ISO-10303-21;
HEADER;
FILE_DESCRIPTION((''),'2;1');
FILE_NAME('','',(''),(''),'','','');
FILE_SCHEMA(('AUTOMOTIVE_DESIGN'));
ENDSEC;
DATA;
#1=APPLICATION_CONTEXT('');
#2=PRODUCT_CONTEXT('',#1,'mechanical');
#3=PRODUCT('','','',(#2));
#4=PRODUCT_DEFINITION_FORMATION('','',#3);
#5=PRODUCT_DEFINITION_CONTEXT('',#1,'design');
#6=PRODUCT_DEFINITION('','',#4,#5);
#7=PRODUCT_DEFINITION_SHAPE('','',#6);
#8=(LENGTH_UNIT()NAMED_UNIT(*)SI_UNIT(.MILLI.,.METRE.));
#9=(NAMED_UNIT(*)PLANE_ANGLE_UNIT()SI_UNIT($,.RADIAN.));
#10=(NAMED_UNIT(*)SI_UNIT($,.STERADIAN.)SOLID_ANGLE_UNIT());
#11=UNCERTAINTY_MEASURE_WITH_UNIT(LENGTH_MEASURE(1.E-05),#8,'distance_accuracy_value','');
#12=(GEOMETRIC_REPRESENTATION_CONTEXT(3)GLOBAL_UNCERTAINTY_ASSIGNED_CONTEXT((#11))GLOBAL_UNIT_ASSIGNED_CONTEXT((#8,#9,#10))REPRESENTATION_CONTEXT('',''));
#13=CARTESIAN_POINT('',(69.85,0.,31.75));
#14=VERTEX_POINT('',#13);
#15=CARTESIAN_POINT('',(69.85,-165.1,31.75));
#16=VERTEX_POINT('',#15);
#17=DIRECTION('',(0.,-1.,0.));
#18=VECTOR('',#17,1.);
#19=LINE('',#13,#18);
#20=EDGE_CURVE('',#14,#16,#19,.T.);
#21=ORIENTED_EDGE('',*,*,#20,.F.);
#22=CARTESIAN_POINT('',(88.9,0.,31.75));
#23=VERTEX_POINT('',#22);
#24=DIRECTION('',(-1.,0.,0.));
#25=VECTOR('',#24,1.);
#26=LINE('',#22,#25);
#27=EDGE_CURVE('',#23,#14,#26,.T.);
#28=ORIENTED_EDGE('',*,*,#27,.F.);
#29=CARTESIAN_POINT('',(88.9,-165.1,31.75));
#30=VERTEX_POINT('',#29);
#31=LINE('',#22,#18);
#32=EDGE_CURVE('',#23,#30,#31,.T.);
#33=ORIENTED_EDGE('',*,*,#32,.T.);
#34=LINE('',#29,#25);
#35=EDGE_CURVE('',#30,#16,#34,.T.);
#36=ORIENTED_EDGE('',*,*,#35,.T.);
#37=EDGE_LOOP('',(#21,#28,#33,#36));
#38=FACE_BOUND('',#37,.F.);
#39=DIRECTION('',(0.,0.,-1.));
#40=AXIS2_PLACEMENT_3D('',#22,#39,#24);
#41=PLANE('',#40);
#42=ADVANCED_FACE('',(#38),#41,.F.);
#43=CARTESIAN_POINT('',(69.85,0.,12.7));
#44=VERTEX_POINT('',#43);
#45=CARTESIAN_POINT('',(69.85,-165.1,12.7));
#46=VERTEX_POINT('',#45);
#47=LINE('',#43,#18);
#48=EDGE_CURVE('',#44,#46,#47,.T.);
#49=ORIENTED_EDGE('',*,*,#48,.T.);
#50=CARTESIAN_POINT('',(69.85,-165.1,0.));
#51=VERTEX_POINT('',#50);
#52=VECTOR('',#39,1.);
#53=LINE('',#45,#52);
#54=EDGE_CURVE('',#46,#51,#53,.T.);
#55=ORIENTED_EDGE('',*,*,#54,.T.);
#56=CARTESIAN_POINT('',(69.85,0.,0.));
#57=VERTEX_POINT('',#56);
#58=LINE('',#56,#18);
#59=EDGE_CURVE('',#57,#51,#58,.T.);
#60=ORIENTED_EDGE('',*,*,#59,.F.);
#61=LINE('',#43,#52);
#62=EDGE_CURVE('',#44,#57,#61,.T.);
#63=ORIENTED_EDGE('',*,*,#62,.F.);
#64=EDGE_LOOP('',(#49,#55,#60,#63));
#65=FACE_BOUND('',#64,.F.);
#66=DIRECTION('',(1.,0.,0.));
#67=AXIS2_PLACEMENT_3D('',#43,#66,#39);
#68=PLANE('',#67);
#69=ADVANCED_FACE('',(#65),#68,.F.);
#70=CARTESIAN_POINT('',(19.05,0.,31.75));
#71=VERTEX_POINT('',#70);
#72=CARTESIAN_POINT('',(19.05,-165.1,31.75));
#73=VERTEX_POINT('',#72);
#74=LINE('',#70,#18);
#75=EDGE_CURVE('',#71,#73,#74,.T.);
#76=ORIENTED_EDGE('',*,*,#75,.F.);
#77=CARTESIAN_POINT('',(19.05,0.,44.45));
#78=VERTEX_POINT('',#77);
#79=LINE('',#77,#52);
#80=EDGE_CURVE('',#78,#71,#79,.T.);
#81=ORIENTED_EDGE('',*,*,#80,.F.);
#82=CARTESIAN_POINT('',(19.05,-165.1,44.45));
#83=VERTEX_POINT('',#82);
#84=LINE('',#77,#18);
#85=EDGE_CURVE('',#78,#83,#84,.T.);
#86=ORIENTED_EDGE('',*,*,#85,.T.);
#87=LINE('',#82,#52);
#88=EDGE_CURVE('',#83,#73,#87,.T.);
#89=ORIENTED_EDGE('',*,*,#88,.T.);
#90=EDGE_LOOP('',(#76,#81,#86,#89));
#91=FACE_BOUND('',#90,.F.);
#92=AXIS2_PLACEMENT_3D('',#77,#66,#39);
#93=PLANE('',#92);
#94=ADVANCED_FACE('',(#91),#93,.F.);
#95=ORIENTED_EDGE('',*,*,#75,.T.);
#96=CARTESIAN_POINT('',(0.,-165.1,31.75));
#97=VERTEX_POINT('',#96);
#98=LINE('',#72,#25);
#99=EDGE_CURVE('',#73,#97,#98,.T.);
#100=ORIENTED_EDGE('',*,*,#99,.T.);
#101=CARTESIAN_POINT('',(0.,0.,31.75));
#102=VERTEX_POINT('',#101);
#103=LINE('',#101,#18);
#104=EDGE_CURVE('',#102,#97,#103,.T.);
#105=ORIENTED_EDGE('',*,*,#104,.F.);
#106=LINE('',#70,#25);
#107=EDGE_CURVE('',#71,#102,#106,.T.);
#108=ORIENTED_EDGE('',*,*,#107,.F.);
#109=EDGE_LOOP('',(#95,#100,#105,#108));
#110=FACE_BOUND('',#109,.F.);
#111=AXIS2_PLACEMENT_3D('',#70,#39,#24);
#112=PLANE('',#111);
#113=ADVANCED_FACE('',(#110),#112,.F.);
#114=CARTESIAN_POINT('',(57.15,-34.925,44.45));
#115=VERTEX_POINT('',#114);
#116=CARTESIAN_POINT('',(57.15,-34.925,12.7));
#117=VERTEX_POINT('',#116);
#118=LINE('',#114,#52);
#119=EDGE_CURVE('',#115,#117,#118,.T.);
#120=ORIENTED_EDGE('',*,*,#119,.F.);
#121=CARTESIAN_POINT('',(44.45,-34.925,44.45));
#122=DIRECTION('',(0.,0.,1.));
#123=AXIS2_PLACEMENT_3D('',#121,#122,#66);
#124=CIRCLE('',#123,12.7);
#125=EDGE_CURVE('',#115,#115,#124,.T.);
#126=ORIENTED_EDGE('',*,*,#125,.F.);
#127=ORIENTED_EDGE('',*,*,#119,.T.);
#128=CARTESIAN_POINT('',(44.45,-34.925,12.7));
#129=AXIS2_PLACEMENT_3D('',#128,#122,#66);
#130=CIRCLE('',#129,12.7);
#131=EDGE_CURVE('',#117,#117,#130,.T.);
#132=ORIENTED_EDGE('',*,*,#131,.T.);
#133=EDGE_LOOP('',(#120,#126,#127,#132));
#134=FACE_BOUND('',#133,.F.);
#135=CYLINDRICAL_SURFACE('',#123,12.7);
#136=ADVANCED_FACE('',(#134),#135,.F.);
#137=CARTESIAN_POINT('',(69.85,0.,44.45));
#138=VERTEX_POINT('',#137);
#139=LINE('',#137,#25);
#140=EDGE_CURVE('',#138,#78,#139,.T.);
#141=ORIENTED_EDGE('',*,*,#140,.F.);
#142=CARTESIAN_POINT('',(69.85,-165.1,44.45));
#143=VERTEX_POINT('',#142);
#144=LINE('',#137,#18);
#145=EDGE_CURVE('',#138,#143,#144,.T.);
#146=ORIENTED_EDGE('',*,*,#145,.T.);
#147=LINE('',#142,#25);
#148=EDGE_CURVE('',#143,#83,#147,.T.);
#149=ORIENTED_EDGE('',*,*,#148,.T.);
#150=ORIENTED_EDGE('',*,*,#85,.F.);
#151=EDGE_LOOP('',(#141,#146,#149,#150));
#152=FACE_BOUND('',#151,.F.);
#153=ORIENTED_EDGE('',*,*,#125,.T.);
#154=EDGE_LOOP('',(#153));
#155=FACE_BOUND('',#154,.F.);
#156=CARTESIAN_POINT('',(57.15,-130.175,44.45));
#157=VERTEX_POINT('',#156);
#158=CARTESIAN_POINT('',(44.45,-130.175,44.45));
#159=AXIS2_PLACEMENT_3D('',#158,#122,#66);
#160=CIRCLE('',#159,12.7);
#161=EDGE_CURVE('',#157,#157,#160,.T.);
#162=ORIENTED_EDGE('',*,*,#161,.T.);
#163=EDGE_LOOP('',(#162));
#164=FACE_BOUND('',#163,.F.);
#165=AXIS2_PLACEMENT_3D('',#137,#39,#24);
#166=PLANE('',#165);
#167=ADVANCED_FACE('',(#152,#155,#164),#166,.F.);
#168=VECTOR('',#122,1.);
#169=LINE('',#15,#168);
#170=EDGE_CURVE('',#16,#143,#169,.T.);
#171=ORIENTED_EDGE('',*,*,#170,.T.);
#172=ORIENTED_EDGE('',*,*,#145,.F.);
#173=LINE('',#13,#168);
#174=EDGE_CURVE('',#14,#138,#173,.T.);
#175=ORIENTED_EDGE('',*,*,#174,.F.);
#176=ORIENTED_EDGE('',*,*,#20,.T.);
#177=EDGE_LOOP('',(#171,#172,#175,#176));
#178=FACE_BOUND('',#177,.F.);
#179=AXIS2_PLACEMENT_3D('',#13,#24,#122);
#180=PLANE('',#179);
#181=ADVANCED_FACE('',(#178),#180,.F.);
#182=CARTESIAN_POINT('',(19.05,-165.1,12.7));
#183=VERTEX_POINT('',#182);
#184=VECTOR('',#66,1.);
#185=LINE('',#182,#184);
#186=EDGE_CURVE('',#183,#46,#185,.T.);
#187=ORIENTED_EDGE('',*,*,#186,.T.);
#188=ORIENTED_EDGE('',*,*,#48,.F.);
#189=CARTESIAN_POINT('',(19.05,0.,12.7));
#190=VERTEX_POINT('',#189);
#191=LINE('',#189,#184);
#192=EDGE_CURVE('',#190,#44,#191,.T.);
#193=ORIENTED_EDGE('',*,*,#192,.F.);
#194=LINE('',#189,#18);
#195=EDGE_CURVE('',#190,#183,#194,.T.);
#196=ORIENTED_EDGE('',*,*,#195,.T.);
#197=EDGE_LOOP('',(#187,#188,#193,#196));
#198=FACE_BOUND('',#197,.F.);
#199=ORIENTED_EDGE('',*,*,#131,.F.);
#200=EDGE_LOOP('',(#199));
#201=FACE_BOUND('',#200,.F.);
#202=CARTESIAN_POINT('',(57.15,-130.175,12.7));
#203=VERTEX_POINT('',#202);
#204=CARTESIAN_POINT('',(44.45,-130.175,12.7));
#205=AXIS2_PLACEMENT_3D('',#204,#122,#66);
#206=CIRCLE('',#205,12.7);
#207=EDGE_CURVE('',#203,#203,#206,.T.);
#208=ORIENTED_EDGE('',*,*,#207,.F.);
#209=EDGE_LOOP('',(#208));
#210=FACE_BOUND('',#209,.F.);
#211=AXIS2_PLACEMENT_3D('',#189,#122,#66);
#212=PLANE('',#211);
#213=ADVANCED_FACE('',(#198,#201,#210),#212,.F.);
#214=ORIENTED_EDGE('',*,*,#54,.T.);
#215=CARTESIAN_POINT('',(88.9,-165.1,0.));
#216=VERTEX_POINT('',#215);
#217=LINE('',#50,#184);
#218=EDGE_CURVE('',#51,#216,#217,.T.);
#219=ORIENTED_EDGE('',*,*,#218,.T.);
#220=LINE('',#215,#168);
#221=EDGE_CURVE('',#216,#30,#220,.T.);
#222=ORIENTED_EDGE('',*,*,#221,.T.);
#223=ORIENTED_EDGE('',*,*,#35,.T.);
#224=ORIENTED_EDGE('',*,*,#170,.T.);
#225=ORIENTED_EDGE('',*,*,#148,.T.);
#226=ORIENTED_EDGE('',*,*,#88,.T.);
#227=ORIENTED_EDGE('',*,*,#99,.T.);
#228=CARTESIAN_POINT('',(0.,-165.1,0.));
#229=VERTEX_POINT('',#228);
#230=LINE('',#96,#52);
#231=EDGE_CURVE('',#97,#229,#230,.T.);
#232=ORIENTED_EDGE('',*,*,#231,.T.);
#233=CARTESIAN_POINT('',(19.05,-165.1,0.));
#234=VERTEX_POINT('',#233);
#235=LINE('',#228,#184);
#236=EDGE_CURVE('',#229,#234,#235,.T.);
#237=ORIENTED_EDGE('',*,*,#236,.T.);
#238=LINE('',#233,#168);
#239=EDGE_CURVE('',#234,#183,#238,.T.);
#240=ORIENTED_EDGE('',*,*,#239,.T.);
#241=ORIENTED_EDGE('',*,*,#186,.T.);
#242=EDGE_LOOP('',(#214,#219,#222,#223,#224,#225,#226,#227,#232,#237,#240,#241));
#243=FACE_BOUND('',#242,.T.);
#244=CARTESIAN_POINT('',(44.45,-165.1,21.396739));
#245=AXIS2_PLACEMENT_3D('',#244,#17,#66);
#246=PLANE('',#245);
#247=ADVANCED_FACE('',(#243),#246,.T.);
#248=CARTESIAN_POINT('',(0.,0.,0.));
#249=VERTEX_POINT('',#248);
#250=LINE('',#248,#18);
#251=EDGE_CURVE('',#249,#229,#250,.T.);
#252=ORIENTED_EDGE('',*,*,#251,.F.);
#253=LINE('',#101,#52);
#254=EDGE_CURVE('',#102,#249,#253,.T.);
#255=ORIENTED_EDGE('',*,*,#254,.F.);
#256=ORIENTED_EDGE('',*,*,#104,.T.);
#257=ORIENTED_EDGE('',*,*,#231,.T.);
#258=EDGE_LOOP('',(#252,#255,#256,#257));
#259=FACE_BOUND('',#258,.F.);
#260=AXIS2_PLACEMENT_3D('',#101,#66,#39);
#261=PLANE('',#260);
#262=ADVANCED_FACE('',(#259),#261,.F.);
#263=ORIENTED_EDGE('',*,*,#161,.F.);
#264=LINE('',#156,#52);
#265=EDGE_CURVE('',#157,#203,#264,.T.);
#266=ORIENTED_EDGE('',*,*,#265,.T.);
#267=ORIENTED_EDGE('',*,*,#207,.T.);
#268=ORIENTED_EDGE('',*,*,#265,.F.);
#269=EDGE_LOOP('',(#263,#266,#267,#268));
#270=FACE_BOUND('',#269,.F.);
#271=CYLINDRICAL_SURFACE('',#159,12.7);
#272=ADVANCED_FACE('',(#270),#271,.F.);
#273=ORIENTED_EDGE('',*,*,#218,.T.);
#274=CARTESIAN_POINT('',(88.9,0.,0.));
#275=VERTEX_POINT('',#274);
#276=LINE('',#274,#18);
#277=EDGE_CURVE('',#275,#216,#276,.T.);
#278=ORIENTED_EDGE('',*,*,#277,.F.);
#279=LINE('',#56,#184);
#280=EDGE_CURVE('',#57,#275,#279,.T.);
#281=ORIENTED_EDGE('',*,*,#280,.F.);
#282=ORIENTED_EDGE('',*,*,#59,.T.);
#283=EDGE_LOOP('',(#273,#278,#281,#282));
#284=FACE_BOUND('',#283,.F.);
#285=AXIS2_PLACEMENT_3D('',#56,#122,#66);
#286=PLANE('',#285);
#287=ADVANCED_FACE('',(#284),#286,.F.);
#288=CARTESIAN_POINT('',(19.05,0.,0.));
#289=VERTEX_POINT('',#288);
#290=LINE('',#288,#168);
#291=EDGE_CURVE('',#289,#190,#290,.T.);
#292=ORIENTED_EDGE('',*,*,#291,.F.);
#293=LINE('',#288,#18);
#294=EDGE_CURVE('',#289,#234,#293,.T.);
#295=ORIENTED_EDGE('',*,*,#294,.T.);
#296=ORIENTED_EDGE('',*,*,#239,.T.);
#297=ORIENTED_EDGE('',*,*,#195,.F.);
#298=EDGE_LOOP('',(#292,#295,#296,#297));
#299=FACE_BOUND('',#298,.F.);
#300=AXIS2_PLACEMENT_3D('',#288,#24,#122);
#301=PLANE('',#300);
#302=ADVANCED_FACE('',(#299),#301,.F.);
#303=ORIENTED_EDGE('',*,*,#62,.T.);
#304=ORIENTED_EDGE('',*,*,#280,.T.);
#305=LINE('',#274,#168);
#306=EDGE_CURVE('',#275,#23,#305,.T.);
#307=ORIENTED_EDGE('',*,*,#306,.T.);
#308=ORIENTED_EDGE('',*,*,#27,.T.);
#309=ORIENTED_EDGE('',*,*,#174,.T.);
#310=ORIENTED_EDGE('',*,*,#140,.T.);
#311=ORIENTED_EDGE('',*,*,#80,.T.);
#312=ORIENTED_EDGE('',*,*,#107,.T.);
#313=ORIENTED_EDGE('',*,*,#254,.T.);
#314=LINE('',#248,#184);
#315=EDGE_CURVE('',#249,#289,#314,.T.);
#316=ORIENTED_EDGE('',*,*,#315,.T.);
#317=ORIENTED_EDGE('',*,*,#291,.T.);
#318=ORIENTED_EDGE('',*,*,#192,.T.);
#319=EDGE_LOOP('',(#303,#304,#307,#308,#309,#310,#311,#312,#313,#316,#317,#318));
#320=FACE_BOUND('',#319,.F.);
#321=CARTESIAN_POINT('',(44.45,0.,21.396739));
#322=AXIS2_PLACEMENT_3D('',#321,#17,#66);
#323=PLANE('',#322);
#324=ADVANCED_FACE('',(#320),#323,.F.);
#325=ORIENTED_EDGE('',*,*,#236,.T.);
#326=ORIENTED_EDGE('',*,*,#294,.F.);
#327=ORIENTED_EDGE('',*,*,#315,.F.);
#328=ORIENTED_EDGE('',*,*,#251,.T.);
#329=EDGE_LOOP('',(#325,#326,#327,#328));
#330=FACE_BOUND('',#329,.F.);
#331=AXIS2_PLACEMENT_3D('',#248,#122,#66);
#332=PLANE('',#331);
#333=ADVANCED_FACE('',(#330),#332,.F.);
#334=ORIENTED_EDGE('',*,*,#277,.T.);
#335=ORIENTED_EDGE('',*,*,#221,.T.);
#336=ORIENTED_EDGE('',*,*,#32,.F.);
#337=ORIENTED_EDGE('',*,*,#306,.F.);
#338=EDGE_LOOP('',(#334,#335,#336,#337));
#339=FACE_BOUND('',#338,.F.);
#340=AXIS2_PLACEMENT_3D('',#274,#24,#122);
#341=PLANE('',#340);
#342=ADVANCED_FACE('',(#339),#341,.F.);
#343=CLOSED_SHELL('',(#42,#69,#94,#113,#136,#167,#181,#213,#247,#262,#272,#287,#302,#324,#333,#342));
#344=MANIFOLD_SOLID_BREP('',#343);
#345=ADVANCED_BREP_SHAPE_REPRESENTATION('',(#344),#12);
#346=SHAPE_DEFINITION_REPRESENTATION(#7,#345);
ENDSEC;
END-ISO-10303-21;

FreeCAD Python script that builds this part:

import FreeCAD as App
import Part
import Sketcher

V = App.Vector
Q = App.Units.Quantity

doc = App.newDocument("Part")
params = doc.addObject("Spreadsheet::Sheet", "Params")
for row, (alias, value) in enumerate([
    ("sketch1_width", "2 in"),
    ("sketch1_height", "0.5 in"),
    ("sketch1_width2", "0.75 in"),
    ("sketch1_height2", "1.25 in"),
    ("pad1_length", "6.5 in"),
    ("sketch2_diameter", "1 in"),
], start=1):
    params.set(f"A{row}", alias)
    params.set(f"B{row}", "=" + value)
    params.setAlias(f"B{row}", alias)

body = doc.addObject("PartDesign::Body", "Body")

# Sketch on XZ plane
sketch1 = body.newObject("Sketcher::SketchObject", "Sketch")
sketch1.AttachmentSupport = (doc.getObject("XZ_Plane"), [""])
sketch1.MapMode = "FlatFace"
sketch1.addGeometry(Part.LineSegment(V(0, 31.75, 0), V(0, 0, 0)), False)
sketch1.addGeometry(Part.LineSegment(V(0, 0, 0), V(19.05, 0, 0)), False)
sketch1.addGeometry(Part.LineSegment(V(19.05, 0, 0), V(19.05, 12.7, 0)), False)
sketch1.addGeometry(Part.LineSegment(V(19.05, 12.7, 0), V(69.85, 12.7, 0)), False)
sketch1.addGeometry(Part.LineSegment(V(69.85, 12.7, 0), V(69.85, 0, 0)), False)
sketch1.addGeometry(Part.LineSegment(V(69.85, 0, 0), V(88.9, 0, 0)), False)
sketch1.addGeometry(Part.LineSegment(V(88.9, 0, 0), V(88.9, 31.75, 0)), False)
sketch1.addGeometry(Part.LineSegment(V(88.9, 31.75, 0), V(69.85, 31.75, 0)), False)
sketch1.addGeometry(Part.LineSegment(V(69.85, 31.75, 0), V(69.85, 44.45, 0)), False)
sketch1.addGeometry(Part.LineSegment(V(69.85, 44.45, 0), V(19.05, 44.45, 0)), False)
sketch1.addGeometry(Part.LineSegment(V(19.05, 44.45, 0), V(19.05, 31.75, 0)), False)
sketch1.addGeometry(Part.LineSegment(V(19.05, 31.75, 0), V(0, 31.75, 0)), False)
sketch1.addConstraint(Sketcher.Constraint("Coincident", 0, 2, 1, 1))
sketch1.addConstraint(Sketcher.Constraint("Coincident", 1, 2, 2, 1))
sketch1.addConstraint(Sketcher.Constraint("Coincident", 2, 2, 3, 1))
sketch1.addConstraint(Sketcher.Constraint("Coincident", 3, 2, 4, 1))
sketch1.addConstraint(Sketcher.Constraint("Coincident", 4, 2, 5, 1))
sketch1.addConstraint(Sketcher.Constraint("Coincident", 5, 2, 6, 1))
sketch1.addConstraint(Sketcher.Constraint("Coincident", 6, 2, 7, 1))
sketch1.addConstraint(Sketcher.Constraint("Coincident", 7, 2, 8, 1))
sketch1.addConstraint(Sketcher.Constraint("Coincident", 8, 2, 9, 1))
sketch1.addConstraint(Sketcher.Constraint("Coincident", 9, 2, 10, 1))
sketch1.addConstraint(Sketcher.Constraint("Coincident", 10, 2, 11, 1))
sketch1.addConstraint(Sketcher.Constraint("Coincident", 11, 2, 0, 1))
sketch1.addConstraint(Sketcher.Constraint("Vertical", 0))
sketch1.addConstraint(Sketcher.Constraint("Horizontal", 1))
sketch1.addConstraint(Sketcher.Constraint("Vertical", 2))
sketch1.addConstraint(Sketcher.Constraint("Horizontal", 3))
sketch1.addConstraint(Sketcher.Constraint("Vertical", 4))
sketch1.addConstraint(Sketcher.Constraint("Horizontal", 5))
sketch1.addConstraint(Sketcher.Constraint("Vertical", 6))
sketch1.addConstraint(Sketcher.Constraint("Horizontal", 7))
sketch1.addConstraint(Sketcher.Constraint("Vertical", 8))
sketch1.addConstraint(Sketcher.Constraint("Horizontal", 9))
sketch1.addConstraint(Sketcher.Constraint("Vertical", 10))
sketch1.addConstraint(Sketcher.Constraint("Horizontal", 11))
sketch1.addConstraint(Sketcher.Constraint("Coincident", 0, 2, -1, 1))
sketch1.addConstraint(Sketcher.Constraint("PointOnObject", 4, 2, -1))
sketch1.addConstraint(Sketcher.Constraint("Horizontal", 7, 2, 10, 2))
sketch1.addConstraint(Sketcher.Constraint("Vertical", 4, 2, 7, 2))
sketch1.addConstraint(Sketcher.Constraint("Vertical", 2, 2, 9, 2))
sketch1.addConstraint(Sketcher.Constraint("Equal", 1, 5))
sketch1.addConstraint(Sketcher.Constraint("Equal", 4, 8))
sketch1.addConstraint(Sketcher.Constraint("DistanceX", 3, 1, 3, 2, Q("2 in")))
sketch1.addConstraint(Sketcher.Constraint("DistanceY", 2, 1, 2, 2, Q("0.5 in")))
sketch1.addConstraint(Sketcher.Constraint("DistanceX", 1, 1, 1, 2, Q("0.75 in")))
sketch1.addConstraint(Sketcher.Constraint("DistanceY", 0, 2, 0, 1, Q("1.25 in")))
sketch1.setExpression("Constraints[31]", "Params.sketch1_width")
sketch1.setExpression("Constraints[32]", "Params.sketch1_height")
sketch1.setExpression("Constraints[33]", "Params.sketch1_width2")
sketch1.setExpression("Constraints[34]", "Params.sketch1_height2")
pad1 = body.newObject("PartDesign::Pad", "Pad")
pad1.Profile = sketch1
pad1.setExpression("Length", "Params.pad1_length")

# Sketch on XY plane
sketch2 = body.newObject("Sketcher::SketchObject", "Sketch001")
sketch2.AttachmentSupport = (doc.getObject("XY_Plane"), [""])
sketch2.MapMode = "FlatFace"
sketch2.AttachmentOffset = App.Placement(V(0, 0, 1.75 * 25.4), App.Rotation())
sketch2.addGeometry(Part.Circle(V(44.45, -34.925, 0), V(0, 0, 1), 12.7), False)
sketch2.addGeometry(Part.Circle(V(44.45, -130.175, 0), V(0, 0, 1), 12.7), False)
sketch2.addConstraint(Sketcher.Constraint("Equal", 0, 1))
sketch2.addConstraint(Sketcher.Constraint("Vertical", 0, 3, 1, 3))
sketch2.addConstraint(Sketcher.Constraint("Diameter", 0, Q("1 in")))
sketch2.addConstraint(Sketcher.Constraint("DistanceX", -1, 1, 0, 3, Q("1.75 in")))
sketch2.addConstraint(Sketcher.Constraint("DistanceY", 1, 3, 0, 3, Q("3.75 in")))
sketch2.addConstraint(Sketcher.Constraint("DistanceY", 0, 3, -1, 1, Q("1.375 in")))
sketch2.setExpression("Constraints[2]", "Params.sketch2_diameter")
pocket1 = body.newObject("PartDesign::Pocket", "Pocket")
pocket1.Profile = sketch2
pocket1.Type = "ThroughAll"

doc.recompute()
